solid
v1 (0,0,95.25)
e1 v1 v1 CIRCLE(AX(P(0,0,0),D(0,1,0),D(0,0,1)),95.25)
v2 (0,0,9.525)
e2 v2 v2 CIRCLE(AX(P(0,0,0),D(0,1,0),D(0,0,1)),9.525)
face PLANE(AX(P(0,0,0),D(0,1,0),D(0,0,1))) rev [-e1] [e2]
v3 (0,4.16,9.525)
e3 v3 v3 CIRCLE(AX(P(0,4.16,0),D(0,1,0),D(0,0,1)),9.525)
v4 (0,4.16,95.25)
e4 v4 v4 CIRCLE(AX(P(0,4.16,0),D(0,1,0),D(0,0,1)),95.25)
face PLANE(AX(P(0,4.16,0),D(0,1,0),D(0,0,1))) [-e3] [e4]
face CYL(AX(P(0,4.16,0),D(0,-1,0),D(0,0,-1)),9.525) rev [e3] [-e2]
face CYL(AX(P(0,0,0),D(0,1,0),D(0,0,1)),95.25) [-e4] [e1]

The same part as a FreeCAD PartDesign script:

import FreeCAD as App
import Part
import Sketcher
from FreeCAD import Vector
Q = App.Units.Quantity

doc = App.newDocument("Part")
params = doc.addObject("Spreadsheet::Sheet", "Params")
for row, (alias, value) in enumerate([
    ("sketch1_diameter", "9 in"),
    ("sketch1_diameter2", "0.75 in"),
    ("pad1_length", "4.16 mm"),
    ("sketch2_diameter", "7.5 in"),
], start=1):
    params.set(f"A{row}", alias)
    params.set(f"B{row}", "=" + value)
    params.setAlias(f"B{row}", alias)

body = doc.addObject("PartDesign::Body", "Body")

# Sketch on XZ plane
sketch1 = doc.addObject("Sketcher::SketchObject", "Sketch")
body.addObject(sketch1)
sketch1.AttachmentSupport = (doc.XZ_Plane, [""])
sketch1.MapMode = "FlatFace"
sketch1.addGeometry(Part.Circle(Vector(0, 0, 0), Vector(0, 0, 1), 114.3), False)
sketch1.addGeometry(Part.Circle(Vector(0, 0, 0), Vector(0, 0, 1), 9.525), False)
sketch1.addConstraint(Sketcher.Constraint("Coincident", 0, 3, -1, 1))
sketch1.addConstraint(Sketcher.Constraint("Coincident", 1, 3, -1, 1))
sketch1.addConstraint(Sketcher.Constraint("Diameter", 0, Q("9 in")))
sketch1.addConstraint(Sketcher.Constraint("Diameter", 1, Q("0.75 in")))
sketch1.setExpression("Constraints[2]", "Params.sketch1_diameter")
sketch1.setExpression("Constraints[3]", "Params.sketch1_diameter2")
pad1 = doc.addObject("PartDesign::Pad", "Pad")
body.addObject(pad1)
pad1.Profile = sketch1
pad1.setExpression("Length", "Params.pad1_length")
pad1.Reversed = True

# Sketch on XZ plane
sketch2 = doc.addObject("Sketcher::SketchObject", "Sketch001")
body.addObject(sketch2)
sketch2.AttachmentSupport = (doc.XZ_Plane, [""])
sketch2.MapMode = "FlatFace"
sketch2.AttachmentOffset = App.Placement(Vector(0, 0, -4.16), App.Rotation())
sketch2.addGeometry(Part.Circle(Vector(0, 0, 0), Vector(0, 0, 1), 131.95065), False)
sketch2.addGeometry(Part.Circle(Vector(0, 0, 0), Vector(0, 0, 1), 95.25), False)
sketch2.addConstraint(Sketcher.Constraint("Coincident", 0, 3, -1, 1))
sketch2.addConstraint(Sketcher.Constraint("Coincident", 1, 3, -1, 1))
sketch2.addConstraint(Sketcher.Constraint("Diameter", 1, Q("7.5 in")))
sketch2.addConstraint(Sketcher.Constraint("Diameter", 0, Q("263.901299 mm")))
sketch2.setExpression("Constraints[2]", "Params.sketch2_diameter")
pocket1 = doc.addObject("PartDesign::Pocket", "Pocket")
body.addObject(pocket1)
pocket1.Profile = sketch2
pocket1.Type = "ThroughAll"
pocket1.Reversed = True

doc.recompute()
